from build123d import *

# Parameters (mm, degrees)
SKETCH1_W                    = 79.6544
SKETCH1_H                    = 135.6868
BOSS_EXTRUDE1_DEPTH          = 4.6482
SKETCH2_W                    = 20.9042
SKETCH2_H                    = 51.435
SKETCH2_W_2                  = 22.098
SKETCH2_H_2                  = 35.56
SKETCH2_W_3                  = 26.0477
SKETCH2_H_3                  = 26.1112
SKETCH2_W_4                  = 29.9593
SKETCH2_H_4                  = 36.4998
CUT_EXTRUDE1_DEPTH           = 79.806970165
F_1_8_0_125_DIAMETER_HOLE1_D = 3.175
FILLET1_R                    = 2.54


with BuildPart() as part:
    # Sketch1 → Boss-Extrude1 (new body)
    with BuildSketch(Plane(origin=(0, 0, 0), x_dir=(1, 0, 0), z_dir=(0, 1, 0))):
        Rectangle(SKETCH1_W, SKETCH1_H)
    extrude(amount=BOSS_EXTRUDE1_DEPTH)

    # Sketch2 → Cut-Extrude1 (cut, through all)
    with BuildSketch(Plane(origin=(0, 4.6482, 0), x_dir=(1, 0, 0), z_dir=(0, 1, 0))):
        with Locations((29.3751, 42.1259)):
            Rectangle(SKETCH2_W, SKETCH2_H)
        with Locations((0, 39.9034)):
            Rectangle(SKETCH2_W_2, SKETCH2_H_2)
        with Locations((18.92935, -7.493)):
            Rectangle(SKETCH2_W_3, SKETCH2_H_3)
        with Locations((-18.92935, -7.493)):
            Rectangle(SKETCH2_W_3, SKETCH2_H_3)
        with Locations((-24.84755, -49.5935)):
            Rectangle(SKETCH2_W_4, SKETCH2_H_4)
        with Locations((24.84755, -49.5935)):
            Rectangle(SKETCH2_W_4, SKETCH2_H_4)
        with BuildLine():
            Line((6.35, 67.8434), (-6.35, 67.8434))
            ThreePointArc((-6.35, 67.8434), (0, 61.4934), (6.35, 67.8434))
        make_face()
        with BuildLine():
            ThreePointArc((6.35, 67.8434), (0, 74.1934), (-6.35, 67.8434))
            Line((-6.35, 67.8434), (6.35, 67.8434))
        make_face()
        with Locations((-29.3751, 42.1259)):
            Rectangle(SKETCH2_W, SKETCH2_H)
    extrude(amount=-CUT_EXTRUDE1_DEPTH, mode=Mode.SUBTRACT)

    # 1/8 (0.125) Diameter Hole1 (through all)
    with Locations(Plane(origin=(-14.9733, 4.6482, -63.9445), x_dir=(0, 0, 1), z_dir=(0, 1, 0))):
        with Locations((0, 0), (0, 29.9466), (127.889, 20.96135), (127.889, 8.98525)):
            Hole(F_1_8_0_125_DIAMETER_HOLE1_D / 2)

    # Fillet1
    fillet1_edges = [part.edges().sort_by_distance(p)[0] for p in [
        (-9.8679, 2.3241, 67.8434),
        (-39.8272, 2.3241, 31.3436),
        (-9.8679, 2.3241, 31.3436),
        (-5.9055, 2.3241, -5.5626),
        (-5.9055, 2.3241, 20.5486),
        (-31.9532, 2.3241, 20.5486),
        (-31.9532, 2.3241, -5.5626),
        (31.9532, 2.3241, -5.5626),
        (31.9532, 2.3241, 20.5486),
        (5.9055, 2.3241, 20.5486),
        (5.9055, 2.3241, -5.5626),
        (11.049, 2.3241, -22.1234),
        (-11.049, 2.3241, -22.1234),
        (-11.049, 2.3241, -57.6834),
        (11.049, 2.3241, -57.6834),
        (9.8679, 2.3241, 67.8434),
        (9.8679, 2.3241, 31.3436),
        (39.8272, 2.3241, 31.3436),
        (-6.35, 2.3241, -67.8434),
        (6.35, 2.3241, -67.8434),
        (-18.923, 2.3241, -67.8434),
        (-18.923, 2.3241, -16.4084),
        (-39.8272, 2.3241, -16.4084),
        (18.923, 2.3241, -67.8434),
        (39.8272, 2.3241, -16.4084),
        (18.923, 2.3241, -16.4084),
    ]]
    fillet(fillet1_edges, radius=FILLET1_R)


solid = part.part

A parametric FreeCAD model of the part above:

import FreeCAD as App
import Part
import Sketcher

V = App.Vector
Q = App.Units.Quantity


def edges_at(feature, points):
    """Names of the edges that pass closest to the given points."""
    edges = feature.Shape.Edges
    near = lambda p: min(range(len(edges)), key=lambda i: edges[i].distToShape(Part.Vertex(*p))[0])
    return sorted({f"Edge{near(p) + 1}" for p in points})

doc = App.newDocument("Part")
body = doc.addObject("PartDesign::Body", "Body")

# Sketch on XZ plane
sketch1 = body.newObject("Sketcher::SketchObject", "Sketch")
sketch1.AttachmentSupport = (doc.getObject("XZ_Plane"), [""])
sketch1.MapMode = "FlatFace"
sketch1.addGeometry(Part.LineSegment(V(-40, -68, 0), V(-40, 68, 0)), False)
sketch1.addGeometry(Part.LineSegment(V(-40, 68, 0), V(40, 68, 0)), False)
sketch1.addGeometry(Part.LineSegment(V(40, 68, 0), V(40, -68, 0)), False)
sketch1.addGeometry(Part.LineSegment(V(40, -68, 0), V(-40, -68, 0)), False)
sketch1.addConstraint(Sketcher.Constraint("Coincident", 0, 2, 1, 1))
sketch1.addConstraint(Sketcher.Constraint("Coincident", 1, 2, 2, 1))
sketch1.addConstraint(Sketcher.Constraint("Coincident", 2, 2, 3, 1))
sketch1.addConstraint(Sketcher.Constraint("Coincident", 3, 2, 0, 1))
sketch1.addConstraint(Sketcher.Constraint("Vertical", 0))
sketch1.addConstraint(Sketcher.Constraint("Horizontal", 1))
sketch1.addConstraint(Sketcher.Constraint("Vertical", 2))
sketch1.addConstraint(Sketcher.Constraint("Horizontal", 3))
sketch1.addConstraint(Sketcher.Constraint("Symmetric", 0, 2, 2, 2, -1, 1))
sketch1.addConstraint(Sketcher.Constraint("DistanceX", 1, 1, 1, 2, Q("3.136 in")))
sketch1.addConstraint(Sketcher.Constraint("DistanceY", 0, 1, 0, 2, Q("5.342 in")))
pad1 = body.newObject("PartDesign::Pad", "Pad")
pad1.Profile = sketch1
pad1.Length = Q("0.183 in")
pad1.Reversed = True

# Sketch on XZ plane
sketch2 = body.newObject("Sketcher::SketchObject", "Sketch001")
sketch2.AttachmentSupport = (doc.getObject("XZ_Plane"), [""])
sketch2.MapMode = "FlatFace"
sketch2.AttachmentOffset = App.Placement(V(0, 0, -0.183 * 25.4), App.Rotation())
sketch2.addGeometry(Part.LineSegment(V(19, -68, 0), V(19, -16, 0)), False)
sketch2.addGeometry(Part.LineSegment(V(19, -16, 0), V(40, -16, 0)), False)
sketch2.addGeometry(Part.LineSegment(V(40, -16, 0), V(40, -68, 0)), False)
sketch2.addGeometry(Part.LineSegment(V(40, -68, 0), V(19, -68, 0)), False)
sketch2.addGeometry(Part.LineSegment(V(-11, -58, 0), V(-11, -22, 0)), False)
sketch2.addGeometry(Part.LineSegment(V(-11, -22, 0), V(11, -22, 0)), False)
sketch2.addGeometry(Part.LineSegment(V(11, -22, 0), V(11, -58, 0)), False)
sketch2.addGeometry(Part.LineSegment(V(11, -58, 0), V(-11, -58, 0)), False)
sketch2.addGeometry(Part.LineSegment(V(6, -6, 0), V(6, 21, 0)), False)
sketch2.addGeometry(Part.LineSegment(V(6, 21, 0), V(32, 21, 0)), False)
sketch2.addGeometry(Part.LineSegment(V(32, 21, 0), V(32, -6, 0)), False)
sketch2.addGeometry(Part.LineSegment(V(32, -6, 0), V(6, -6, 0)), False)
sketch2.addGeometry(Part.LineSegment(V(-32, -6, 0), V(-32, 21, 0)), False)
sketch2.addGeometry(Part.LineSegment(V(-32, 21, 0), V(-6, 21, 0)), False)
sketch2.addGeometry(Part.LineSegment(V(-6, 21, 0), V(-6, -6, 0)), False)
sketch2.addGeometry(Part.LineSegment(V(-6, -6, 0), V(-32, -6, 0)), False)
sketch2.addGeometry(Part.LineSegment(V(-40, 31, 0), V(-40, 68, 0)), False)
sketch2.addGeometry(Part.LineSegment(V(-40, 68, 0), V(-10, 68, 0)), False)
sketch2.addGeometry(Part.LineSegment(V(-10, 68, 0), V(-10, 31, 0)), False)
sketch2.addGeometry(Part.LineSegment(V(-10, 31, 0), V(-40, 31, 0)), False)
sketch2.addGeometry(Part.LineSegment(V(10, 31, 0), V(10, 68, 0)), False)
sketch2.addGeometry(Part.LineSegment(V(10, 68, 0), V(40, 68, 0)), False)
sketch2.addGeometry(Part.LineSegment(V(40, 68, 0), V(40, 31, 0)), False)
sketch2.addGeometry(Part.LineSegment(V(40, 31, 0), V(10, 31, 0)), False)
sketch2.addGeometry(Part.Circle(V(0, -68, 0), V(0, 0, 1), 6), False)
sketch2.addGeometry(Part.LineSegment(V(-40, -68, 0), V(-40, -16, 0)), False)
sketch2.addGeometry(Part.LineSegment(V(-40, -16, 0), V(-19, -16, 0)), False)
sketch2.addGeometry(Part.LineSegment(V(-19, -16, 0), V(-19, -68, 0)), False)
sketch2.addGeometry(Part.LineSegment(V(-19, -68, 0), V(-40, -68, 0)), False)
sketch2.addConstraint(Sketcher.Constraint("Coincident", 0, 2, 1, 1))
sketch2.addConstraint(Sketcher.Constraint("Coincident", 1, 2, 2, 1))
sketch2.addConstraint(Sketcher.Constraint("Coincident", 2, 2, 3, 1))
sketch2.addConstraint(Sketcher.Constraint("Coincident", 3, 2, 0, 1))
sketch2.addConstraint(Sketcher.Constraint("Coincident", 4, 2, 5, 1))
sketch2.addConstraint(Sketcher.Constraint("Coincident", 5, 2, 6, 1))
sketch2.addConstraint(Sketcher.Constraint("Coincident", 6, 2, 7, 1))
sketch2.addConstraint(Sketcher.Constraint("Coincident", 7, 2, 4, 1))
sketch2.addConstraint(Sketcher.Constraint("Coincident", 8, 2, 9, 1))
sketch2.addConstraint(Sketcher.Constraint("Coincident", 9, 2, 10, 1))
sketch2.addConstraint(Sketcher.Constraint("Coincident", 10, 2, 11, 1))
sketch2.addConstraint(Sketcher.Constraint("Coincident", 11, 2, 8, 1))
sketch2.addConstraint(Sketcher.Constraint("Coincident", 12, 2, 13, 1))
sketch2.addConstraint(Sketcher.Constraint("Coincident", 13, 2, 14, 1))
sketch2.addConstraint(Sketcher.Constraint("Coincident", 14, 2, 15, 1))
sketch2.addConstraint(Sketcher.Constraint("Coincident", 15, 2, 12, 1))
sketch2.addConstraint(Sketcher.Constraint("Coincident", 16, 2, 17, 1))
sketch2.addConstraint(Sketcher.Constraint("Coincident", 17, 2, 18, 1))
sketch2.addConstraint(Sketcher.Constraint("Coincident", 18, 2, 19, 1))
sketch2.addConstraint(Sketcher.Constraint("Coincident", 19, 2, 16, 1))
sketch2.addConstraint(Sketcher.Constraint("Coincident", 20, 2, 21, 1))
sketch2.addConstraint(Sketcher.Constraint("Coincident", 21, 2, 22, 1))
sketch2.addConstraint(Sketcher.Constraint("Coincident", 22, 2, 23, 1))
sketch2.addConstraint(Sketcher.Constraint("Coincident", 23, 2, 20, 1))
sketch2.addConstraint(Sketcher.Constraint("Coincident", 25, 2, 26, 1))
sketch2.addConstraint(Sketcher.Constraint("Coincident", 26, 2, 27, 1))
sketch2.addConstraint(Sketcher.Constraint("Coincident", 27, 2, 28, 1))
sketch2.addConstraint(Sketcher.Constraint("Coincident", 28, 2, 25, 1))
sketch2.addConstraint(Sketcher.Constraint("Vertical", 0))
sketch2.addConstraint(Sketcher.Constraint("Horizontal", 1))
sketch2.addConstraint(Sketcher.Constraint("Vertical", 2))
sketch2.addConstraint(Sketcher.Constraint("Horizontal", 3))
sketch2.addConstraint(Sketcher.Constraint("Vertical", 4))
sketch2.addConstraint(Sketcher.Constraint("Horizontal", 5))
sketch2.addConstraint(Sketcher.Constraint("Vertical", 6))
sketch2.addConstraint(Sketcher.Constraint("Horizontal", 7))
sketch2.addConstraint(Sketcher.Constraint("Vertical", 8))
sketch2.addConstraint(Sketcher.Constraint("Horizontal", 9))
sketch2.addConstraint(Sketcher.Constraint("Vertical", 10))
sketch2.addConstraint(Sketcher.Constraint("Horizontal", 11))
sketch2.addConstraint(Sketcher.Constraint("Vertical", 12))
sketch2.addConstraint(Sketcher.Constraint("Horizontal", 13))
sketch2.addConstraint(Sketcher.Constraint("Vertical", 14))
sketch2.addConstraint(Sketcher.Constraint("Horizontal", 15))
sketch2.addConstraint(Sketcher.Constraint("Vertical", 16))
sketch2.addConstraint(Sketcher.Constraint("Horizontal", 17))
sketch2.addConstraint(Sketcher.Constraint("Vertical", 18))
sketch2.addConstraint(Sketcher.Constraint("Horizontal", 19))
sketch2.addConstraint(Sketcher.Constraint("Vertical", 20))
sketch2.addConstraint(Sketcher.Constraint("Horizontal", 21))
sketch2.addConstraint(Sketcher.Constraint("Vertical", 22))
sketch2.addConstraint(Sketcher.Constraint("Horizontal", 23))
sketch2.addConstraint(Sketcher.Constraint("Vertical", 25))
sketch2.addConstraint(Sketcher.Constraint("Horizontal", 26))
sketch2.addConstraint(Sketcher.Constraint("Vertical", 27))
sketch2.addConstraint(Sketcher.Constraint("Horizontal", 28))
sketch2.addConstraint(Sketcher.Constraint("Symmetric", 2, 2, 16, 2, -1, 1))
sketch2.addConstraint(Sketcher.Constraint("Symmetric", 21, 2, 28, 2, -1, 1))
sketch2.addConstraint(Sketcher.Constraint("Symmetric", 9, 2, 12, 2, -2))
sketch2.addConstraint(Sketcher.Constraint("Symmetric", 11, 2, 14, 2, -2))
sketch2.addConstraint(Sketcher.Constraint("Symmetric", 17, 2, 20, 2, -2))
sketch2.addConstraint(Sketcher.Constraint("Symmetric", 19, 2, 22, 2, -2))
sketch2.addConstraint(Sketcher.Constraint("Symmetric", 0, 2, 26, 2, -2))
sketch2.addConstraint(Sketcher.Constraint("PointOnObject", 24, 3, -2))
sketch2.addConstraint(Sketcher.Constraint("Horizontal", 24, 3, 2, 2))
sketch2.addConstraint(Sketcher.Constraint("Diameter", 24, Q("0.5 in")))
sketch2.addConstraint(Sketcher.Constraint("DistanceY", 4, 1, 4, 2, Q("1.4 in")))
sketch2.addConstraint(Sketcher.Constraint("DistanceX", 5, 1, 5, 2, Q("0.87 in")))
sketch2.addConstraint(Sketcher.Constraint("DistanceY", 24, 3, 4, 2, Q("1.8 in")))
sketch2.addConstraint(Sketcher.Constraint("DistanceX", 1, 1, 1, 2, Q("0.823 in")))
sketch2.addConstraint(Sketcher.Constraint("DistanceY", 0, 1, 0, 2, Q("2.025 in")))
sketch2.addConstraint(Sketcher.Constraint("DistanceY", 8, 1, 8, 2, Q("1.028 in")))
sketch2.addConstraint(Sketcher.Constraint("DistanceY", 16, 1, 16, 2, Q("1.437 in")))
sketch2.addConstraint(Sketcher.Constraint("DistanceX", 4, 2, 0, 2, Q("1.18 in")))
sketch2.addConstraint(Sketcher.Constraint("DistanceY", 5, 2, 8, 2, Q("1.68 in")))
sketch2.addConstraint(Sketcher.Constraint("DistanceX", 9, 2, 1, 2, Q("0.31 in")))
sketch2.addConstraint(Sketcher.Constraint("DistanceY", 15, 2, 16, 2, Q("2.89 in")))
sketch2.addConstraint(Sketcher.Constraint("DistanceX", 26, 2, 4, 2, Q("0.31 in")))
sketch2.addConstraint(Sketcher.Constraint("DistanceX", 9, 1, 9, 2, Q("1.0255 in")))
sketch2.addConstraint(Sketcher.Constraint("DistanceX", 17, 1, 17, 2, Q("1.1795 in")))
pocket1 = body.newObject("PartDesign::Pocket", "Pocket")
pocket1.Profile = sketch2
pocket1.Type = "ThroughAll"
pocket1.Reversed = True

# Sketch on XZ plane
sketch3 = body.newObject("Sketcher::SketchObject", "Sketch002")
sketch3.AttachmentSupport = (doc.getObject("XZ_Plane"), [""])
sketch3.MapMode = "FlatFace"
sketch3.AttachmentOffset = App.Placement(V(0, 0, -0.183 * 25.4), App.Rotation())
sketch3.addGeometry(Part.Circle(V(-15, -63.9, 0), V(0, 0, 1), 1.6), False)
sketch3.addGeometry(Part.Circle(V(15, -63.9, 0), V(0, 0, 1), 1.6), False)
sketch3.addGeometry(Part.Circle(V(6, 63.9, 0), V(0, 0, 1), 1.6), False)
sketch3.addGeometry(Part.Circle(V(-6, 63.9, 0), V(0, 0, 1), 1.6), False)
sketch3.addConstraint(Sketcher.Constraint("Equal", 0, 1))
sketch3.addConstraint(Sketcher.Constraint("Equal", 1, 2))
sketch3.addConstraint(Sketcher.Constraint("Equal", 2, 3))
sketch3.addConstraint(Sketcher.Constraint("Symmetric", 0, 3, 1, 3, -2))
sketch3.addConstraint(Sketcher.Constraint("Symmetric", 2, 3, 3, 3, -2))
sketch3.addConstraint(Sketcher.Constraint("Diameter", 0, Q("0.125 in")))
sketch3.addConstraint(Sketcher.Constraint("DistanceX", 0, 3, 1, 3, Q("1.179 in")))
sketch3.addConstraint(Sketcher.Constraint("DistanceY", 1, 3, 2, 3, Q("5.035 in")))
sketch3.addConstraint(Sketcher.Constraint("DistanceY", 0, 3, -1, 1, Q("2.5175 in")))
sketch3.addConstraint(Sketcher.Constraint("DistanceX", 3, 3, 2, 3, Q("0.4715 in")))
doc.recompute()
hole = body.newObject("PartDesign::Hole", "Hole")
hole.Profile = sketch3
hole.ThreadType = "None"
hole.Diameter = Q("0.125 in")
hole.DepthType = "ThroughAll"
hole.Reversed = True
doc.recompute()

fillet = body.newObject("PartDesign::Fillet", "Fillet")
fillet.Base = (hole, edges_at(hole, [
    (-9.868, 2.324, 67.843),
    (-39.827, 2.324, 31.344),
    (-9.868, 2.324, 31.344),
    (-5.905, 2.324, -5.563),
    (-5.905, 2.324, 20.549),
    (-31.953, 2.324, 20.549),
    (-31.953, 2.324, -5.563),
    (31.953, 2.324, -5.563),
    (31.953, 2.324, 20.549),
    (5.905, 2.324, 20.549),
    (5.905, 2.324, -5.563),
    (11.049, 2.324, -22.123),
    (-11.049, 2.324, -22.123),
    (-11.049, 2.324, -57.683),
    (11.049, 2.324, -57.683),
    (9.868, 2.324, 67.843),
    (9.868, 2.324, 31.344),
    (39.827, 2.324, 31.344),
    (-6.35, 2.324, -67.843),
    (6.35, 2.324, -67.843),
    (-18.923, 2.324, -67.843),
    (-18.923, 2.324, -16.408),
    (-39.827, 2.324, -16.408),
    (18.923, 2.324, -67.843),
    (39.827, 2.324, -16.408),
    (18.923, 2.324, -16.408),
]))
fillet.Radius = Q("0.1 in")

doc.recompute()
